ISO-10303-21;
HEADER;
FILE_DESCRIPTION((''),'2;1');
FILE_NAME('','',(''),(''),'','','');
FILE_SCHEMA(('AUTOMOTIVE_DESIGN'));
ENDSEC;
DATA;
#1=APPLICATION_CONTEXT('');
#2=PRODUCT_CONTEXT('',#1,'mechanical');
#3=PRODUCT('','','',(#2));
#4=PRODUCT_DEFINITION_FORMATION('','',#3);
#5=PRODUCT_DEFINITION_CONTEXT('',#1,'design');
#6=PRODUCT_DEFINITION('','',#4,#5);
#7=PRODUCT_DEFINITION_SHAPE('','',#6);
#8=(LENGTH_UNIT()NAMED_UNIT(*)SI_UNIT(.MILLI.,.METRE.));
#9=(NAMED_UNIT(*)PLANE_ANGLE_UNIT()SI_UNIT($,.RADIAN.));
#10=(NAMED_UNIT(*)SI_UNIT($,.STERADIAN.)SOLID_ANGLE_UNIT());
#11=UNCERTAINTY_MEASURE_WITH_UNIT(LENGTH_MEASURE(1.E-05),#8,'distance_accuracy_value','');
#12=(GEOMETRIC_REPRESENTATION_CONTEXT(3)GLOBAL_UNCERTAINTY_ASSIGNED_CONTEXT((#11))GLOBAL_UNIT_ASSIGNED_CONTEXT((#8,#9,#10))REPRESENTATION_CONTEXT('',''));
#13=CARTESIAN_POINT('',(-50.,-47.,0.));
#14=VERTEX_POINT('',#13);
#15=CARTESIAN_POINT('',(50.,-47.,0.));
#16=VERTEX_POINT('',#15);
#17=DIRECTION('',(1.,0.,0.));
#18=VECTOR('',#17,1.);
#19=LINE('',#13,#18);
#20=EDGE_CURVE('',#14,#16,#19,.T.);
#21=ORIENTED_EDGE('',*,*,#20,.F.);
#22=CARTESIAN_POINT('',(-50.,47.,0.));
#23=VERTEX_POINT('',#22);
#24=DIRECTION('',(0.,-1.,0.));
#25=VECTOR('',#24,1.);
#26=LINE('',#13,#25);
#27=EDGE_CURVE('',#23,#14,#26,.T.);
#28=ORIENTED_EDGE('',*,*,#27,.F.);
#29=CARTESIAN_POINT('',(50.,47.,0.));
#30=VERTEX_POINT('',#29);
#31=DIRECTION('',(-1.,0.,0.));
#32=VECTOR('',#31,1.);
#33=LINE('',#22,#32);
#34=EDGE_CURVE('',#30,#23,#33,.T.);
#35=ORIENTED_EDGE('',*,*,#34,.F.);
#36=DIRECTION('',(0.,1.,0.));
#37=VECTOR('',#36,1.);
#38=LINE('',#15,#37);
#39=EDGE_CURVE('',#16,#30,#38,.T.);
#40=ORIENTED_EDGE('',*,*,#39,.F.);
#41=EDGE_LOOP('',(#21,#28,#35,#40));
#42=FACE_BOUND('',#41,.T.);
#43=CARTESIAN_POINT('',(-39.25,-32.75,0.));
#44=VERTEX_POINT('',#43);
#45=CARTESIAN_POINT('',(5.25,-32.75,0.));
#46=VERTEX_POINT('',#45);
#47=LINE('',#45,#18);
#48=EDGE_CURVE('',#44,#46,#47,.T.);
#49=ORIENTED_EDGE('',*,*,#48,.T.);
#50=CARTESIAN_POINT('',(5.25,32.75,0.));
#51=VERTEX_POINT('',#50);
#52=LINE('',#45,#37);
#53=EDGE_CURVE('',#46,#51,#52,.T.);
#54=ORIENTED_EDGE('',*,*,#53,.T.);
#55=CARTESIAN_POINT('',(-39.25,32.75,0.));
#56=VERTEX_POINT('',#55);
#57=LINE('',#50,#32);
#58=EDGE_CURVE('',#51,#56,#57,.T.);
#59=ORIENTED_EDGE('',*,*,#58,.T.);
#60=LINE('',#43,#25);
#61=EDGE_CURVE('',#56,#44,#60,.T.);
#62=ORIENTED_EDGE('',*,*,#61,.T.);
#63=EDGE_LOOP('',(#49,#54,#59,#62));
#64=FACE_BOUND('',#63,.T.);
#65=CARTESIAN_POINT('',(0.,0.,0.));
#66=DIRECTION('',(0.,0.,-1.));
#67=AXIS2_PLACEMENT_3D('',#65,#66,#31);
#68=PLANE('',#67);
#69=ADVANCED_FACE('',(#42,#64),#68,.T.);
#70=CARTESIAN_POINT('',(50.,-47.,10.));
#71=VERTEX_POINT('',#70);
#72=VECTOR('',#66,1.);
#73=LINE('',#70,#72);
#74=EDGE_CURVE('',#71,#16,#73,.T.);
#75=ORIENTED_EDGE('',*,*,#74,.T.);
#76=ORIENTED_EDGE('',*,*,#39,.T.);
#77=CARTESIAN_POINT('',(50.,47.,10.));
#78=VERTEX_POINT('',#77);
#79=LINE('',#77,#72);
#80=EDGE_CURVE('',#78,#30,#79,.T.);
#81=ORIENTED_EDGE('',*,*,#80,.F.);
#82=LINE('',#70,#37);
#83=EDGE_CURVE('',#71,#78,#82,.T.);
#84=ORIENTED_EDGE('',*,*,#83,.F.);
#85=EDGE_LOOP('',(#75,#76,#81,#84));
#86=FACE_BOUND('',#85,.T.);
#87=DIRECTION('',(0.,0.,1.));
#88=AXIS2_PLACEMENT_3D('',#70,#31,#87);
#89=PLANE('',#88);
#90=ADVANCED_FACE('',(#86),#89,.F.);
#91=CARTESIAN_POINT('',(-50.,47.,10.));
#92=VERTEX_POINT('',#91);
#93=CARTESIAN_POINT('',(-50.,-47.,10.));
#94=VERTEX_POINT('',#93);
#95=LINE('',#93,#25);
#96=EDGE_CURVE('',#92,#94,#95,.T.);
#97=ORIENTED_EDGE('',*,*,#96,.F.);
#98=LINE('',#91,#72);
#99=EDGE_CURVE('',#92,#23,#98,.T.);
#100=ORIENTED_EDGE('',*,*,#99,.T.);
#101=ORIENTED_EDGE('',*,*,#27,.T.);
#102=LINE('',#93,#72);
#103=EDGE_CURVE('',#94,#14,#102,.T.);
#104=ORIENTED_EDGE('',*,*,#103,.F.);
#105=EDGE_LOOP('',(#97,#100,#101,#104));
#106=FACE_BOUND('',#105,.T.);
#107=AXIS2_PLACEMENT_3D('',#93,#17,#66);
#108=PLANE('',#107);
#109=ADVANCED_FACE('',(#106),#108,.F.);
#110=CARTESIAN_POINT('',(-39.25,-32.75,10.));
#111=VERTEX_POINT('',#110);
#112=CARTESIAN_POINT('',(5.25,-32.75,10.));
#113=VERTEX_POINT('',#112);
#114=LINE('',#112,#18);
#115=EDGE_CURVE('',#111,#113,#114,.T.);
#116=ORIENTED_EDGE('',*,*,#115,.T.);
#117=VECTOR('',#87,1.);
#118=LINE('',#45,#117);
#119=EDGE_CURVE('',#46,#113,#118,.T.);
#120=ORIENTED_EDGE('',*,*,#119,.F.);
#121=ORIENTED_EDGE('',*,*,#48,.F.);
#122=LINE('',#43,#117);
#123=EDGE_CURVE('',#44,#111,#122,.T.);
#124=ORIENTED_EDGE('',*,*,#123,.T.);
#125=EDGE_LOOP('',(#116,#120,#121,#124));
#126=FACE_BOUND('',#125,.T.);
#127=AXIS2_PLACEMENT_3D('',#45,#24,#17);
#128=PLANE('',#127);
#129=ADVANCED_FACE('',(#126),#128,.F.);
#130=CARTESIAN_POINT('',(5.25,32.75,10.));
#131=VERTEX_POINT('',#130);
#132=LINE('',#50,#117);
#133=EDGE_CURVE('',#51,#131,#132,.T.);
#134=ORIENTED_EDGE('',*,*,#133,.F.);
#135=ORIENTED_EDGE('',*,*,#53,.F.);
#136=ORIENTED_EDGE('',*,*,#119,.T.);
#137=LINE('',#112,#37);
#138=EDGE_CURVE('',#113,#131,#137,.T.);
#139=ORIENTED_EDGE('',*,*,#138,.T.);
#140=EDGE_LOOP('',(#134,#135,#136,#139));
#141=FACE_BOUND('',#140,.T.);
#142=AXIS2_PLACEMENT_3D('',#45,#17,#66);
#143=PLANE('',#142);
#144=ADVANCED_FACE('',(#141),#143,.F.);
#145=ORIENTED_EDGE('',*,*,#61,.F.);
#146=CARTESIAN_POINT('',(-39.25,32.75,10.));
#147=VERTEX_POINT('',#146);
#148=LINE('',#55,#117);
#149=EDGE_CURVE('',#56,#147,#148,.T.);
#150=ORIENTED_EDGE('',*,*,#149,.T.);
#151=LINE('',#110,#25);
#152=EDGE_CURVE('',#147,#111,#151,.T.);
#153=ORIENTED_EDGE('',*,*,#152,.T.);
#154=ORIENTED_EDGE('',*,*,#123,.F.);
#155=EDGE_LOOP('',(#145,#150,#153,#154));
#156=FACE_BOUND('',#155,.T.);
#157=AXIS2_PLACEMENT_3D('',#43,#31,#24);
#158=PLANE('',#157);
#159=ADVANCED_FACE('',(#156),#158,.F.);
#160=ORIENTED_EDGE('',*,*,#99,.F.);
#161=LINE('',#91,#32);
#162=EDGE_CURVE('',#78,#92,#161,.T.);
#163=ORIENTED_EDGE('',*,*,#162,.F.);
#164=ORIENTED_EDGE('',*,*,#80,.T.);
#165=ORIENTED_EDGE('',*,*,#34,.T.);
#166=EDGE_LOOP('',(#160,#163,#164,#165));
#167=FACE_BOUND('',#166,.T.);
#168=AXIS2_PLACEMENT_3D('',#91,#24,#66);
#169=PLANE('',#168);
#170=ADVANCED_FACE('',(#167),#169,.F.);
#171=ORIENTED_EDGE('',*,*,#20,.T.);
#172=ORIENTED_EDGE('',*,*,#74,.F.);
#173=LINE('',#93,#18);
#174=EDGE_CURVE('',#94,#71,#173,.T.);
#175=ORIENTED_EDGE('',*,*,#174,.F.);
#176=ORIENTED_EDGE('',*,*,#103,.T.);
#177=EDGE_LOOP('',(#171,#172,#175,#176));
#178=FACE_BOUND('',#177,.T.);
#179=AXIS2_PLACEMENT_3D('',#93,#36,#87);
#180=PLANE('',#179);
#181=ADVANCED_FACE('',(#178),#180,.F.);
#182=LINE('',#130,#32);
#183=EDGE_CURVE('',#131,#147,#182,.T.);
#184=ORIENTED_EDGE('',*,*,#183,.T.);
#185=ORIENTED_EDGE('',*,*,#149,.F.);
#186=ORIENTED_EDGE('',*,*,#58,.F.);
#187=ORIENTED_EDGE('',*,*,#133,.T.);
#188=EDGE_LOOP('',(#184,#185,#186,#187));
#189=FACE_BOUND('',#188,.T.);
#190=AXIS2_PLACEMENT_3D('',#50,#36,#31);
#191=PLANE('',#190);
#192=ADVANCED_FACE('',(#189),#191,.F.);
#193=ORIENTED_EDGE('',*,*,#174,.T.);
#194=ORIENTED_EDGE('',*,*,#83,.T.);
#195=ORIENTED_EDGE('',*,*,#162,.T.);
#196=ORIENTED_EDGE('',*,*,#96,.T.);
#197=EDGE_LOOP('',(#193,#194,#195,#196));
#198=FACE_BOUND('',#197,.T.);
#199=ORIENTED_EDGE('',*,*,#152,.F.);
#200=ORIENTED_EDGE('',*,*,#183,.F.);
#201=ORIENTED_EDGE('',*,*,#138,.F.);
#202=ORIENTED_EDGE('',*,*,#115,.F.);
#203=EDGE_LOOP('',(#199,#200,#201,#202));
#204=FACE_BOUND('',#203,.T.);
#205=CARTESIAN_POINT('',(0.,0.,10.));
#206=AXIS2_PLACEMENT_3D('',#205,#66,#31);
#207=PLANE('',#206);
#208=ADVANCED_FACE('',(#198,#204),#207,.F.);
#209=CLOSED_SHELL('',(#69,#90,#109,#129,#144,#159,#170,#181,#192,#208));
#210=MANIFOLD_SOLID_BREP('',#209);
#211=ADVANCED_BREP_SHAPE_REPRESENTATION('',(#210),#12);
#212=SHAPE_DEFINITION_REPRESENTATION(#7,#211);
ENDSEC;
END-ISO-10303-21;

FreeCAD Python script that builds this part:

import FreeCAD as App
import Part
import Sketcher

V = App.Vector
Q = App.Units.Quantity


def add_polygon(sketch, points):
    """Adds a closed chain of lines whose ends are joined by coincident constraints."""
    first, n = sketch.GeometryCount, len(points)
    for a, b in zip(points, points[1:] + points[:1]):
        sketch.addGeometry(Part.LineSegment(App.Vector(*a, 0), App.Vector(*b, 0)), False)
    for i in range(n):
        sketch.addConstraint(Sketcher.Constraint("Coincident", first + i, 2, first + (i + 1) % n, 1))

doc = App.newDocument("Part")
params = doc.addObject("Spreadsheet::Sheet", "Params")
for row, (alias, value) in enumerate([
    ("sketch1_width", "100 mm"),
    ("sketch1_height", "94 mm"),
    ("pad1_length", "10 mm"),
    ("sketch2_width", "44.5 mm"),
    ("sketch2_height", "65.5 mm"),
    ("pocket1_length", "10 mm"),
], start=1):
    params.set(f"A{row}", alias)
    params.set(f"B{row}", "=" + value)
    params.setAlias(f"B{row}", alias)

body = doc.addObject("PartDesign::Body", "Body")

sketch1 = doc.addObject("Sketcher::SketchObject", "Sketch")
body.addObject(sketch1)
sketch1.AttachmentSupport = (doc.XY_Plane, [""])
sketch1.MapMode = "FlatFace"
add_polygon(sketch1, [(-50, 47), (-50, -47), (50, -47), (50, 47)])
sketch1.addConstraint(Sketcher.Constraint("Vertical", 0))
sketch1.addConstraint(Sketcher.Constraint("Horizontal", 1))
sketch1.addConstraint(Sketcher.Constraint("Vertical", 2))
sketch1.addConstraint(Sketcher.Constraint("Horizontal", 3))
sketch1.addConstraint(Sketcher.Constraint("Symmetric", 0, 2, 2, 2, -1, 1))
sketch1.addConstraint(Sketcher.Constraint("DistanceX", 1, 1, 1, 2, Q("100 mm")))
sketch1.addConstraint(Sketcher.Constraint("DistanceY", 0, 2, 0, 1, Q("94 mm")))
sketch1.setExpression("Constraints[9]", "Params.sketch1_width")
sketch1.setExpression("Constraints[10]", "Params.sketch1_height")
pad1 = doc.addObject("PartDesign::Pad", "Pad")
body.addObject(pad1)
pad1.Profile = sketch1
pad1.setExpression("Length", "Params.pad1_length")

sketch2 = doc.addObject("Sketcher::SketchObject", "Sketch001")
body.addObject(sketch2)
sketch2.AttachmentSupport = (doc.XY_Plane, [""])
sketch2.MapMode = "FlatFace"
sketch2.AttachmentOffset = App.Placement(V(0, 0, 10), App.Rotation())
add_polygon(sketch2, [(-39.25, 32.75), (-39.25, -32.75), (5.25, -32.75), (5.25, 32.75)])
sketch2.addConstraint(Sketcher.Constraint("Vertical", 0))
sketch2.addConstraint(Sketcher.Constraint("Horizontal", 1))
sketch2.addConstraint(Sketcher.Constraint("Vertical", 2))
sketch2.addConstraint(Sketcher.Constraint("Horizontal", 3))
sketch2.addConstraint(Sketcher.Constraint("DistanceX", 1, 1, 1, 2, Q("44.5 mm")))
sketch2.addConstraint(Sketcher.Constraint("DistanceY", 0, 2, 0, 1, Q("65.5 mm")))
sketch2.addConstraint(Sketcher.Constraint("DistanceX", 0, 2, -1, 1, Q("39.25 mm")))
sketch2.addConstraint(Sketcher.Constraint("DistanceY", 0, 2, -1, 1, Q("32.75 mm")))
sketch2.setExpression("Constraints[8]", "Params.sketch2_width")
sketch2.setExpression("Constraints[9]", "Params.sketch2_height")
pocket1 = doc.addObject("PartDesign::Pocket", "Pocket")
body.addObject(pocket1)
pocket1.Profile = sketch2
pocket1.setExpression("Length", "Params.pocket1_length")

doc.recompute()
